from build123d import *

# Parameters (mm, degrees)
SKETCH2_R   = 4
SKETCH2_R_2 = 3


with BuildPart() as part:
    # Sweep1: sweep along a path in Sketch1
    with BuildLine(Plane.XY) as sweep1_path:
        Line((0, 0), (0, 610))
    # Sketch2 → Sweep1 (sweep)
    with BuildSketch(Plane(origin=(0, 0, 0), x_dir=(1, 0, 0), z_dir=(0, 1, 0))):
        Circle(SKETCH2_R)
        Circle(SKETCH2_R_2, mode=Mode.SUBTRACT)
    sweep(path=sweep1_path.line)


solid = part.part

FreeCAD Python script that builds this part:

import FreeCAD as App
import Part
import Sketcher
Q = App.Units.Quantity

doc = App.newDocument("Part")
body = doc.addObject("PartDesign::Body", "Body")

sketch1 = body.newObject("Sketcher::SketchObject", "Sketch")
sketch1.AttachmentSupport = (doc.getObject("XZ_Plane"), [""])
sketch1.MapMode = "FlatFace"
sketch1.addGeometry(Part.Circle(App.Vector(0, 0, 0), App.Vector(0, 0, 1), 4), False)
sketch1.addGeometry(Part.Circle(App.Vector(0, 0, 0), App.Vector(0, 0, 1), 3), False)
sketch1.addConstraint(Sketcher.Constraint("Coincident", 0, 3, -1, 1))
sketch1.addConstraint(Sketcher.Constraint("Coincident", 1, 3, -1, 1))
sketch1.addConstraint(Sketcher.Constraint("Diameter", 0, Q("8 mm")))
sketch1.addConstraint(Sketcher.Constraint("Diameter", 1, Q("6 mm")))

sketch2 = body.newObject("Sketcher::SketchObject", "Sketch001")
sketch2.AttachmentSupport = (doc.getObject("XY_Plane"), [""])
sketch2.MapMode = "FlatFace"
sketch2.addGeometry(Part.LineSegment(App.Vector(0, 0, 0), App.Vector(0, 610, 0)), False)
sketch2.addConstraint(Sketcher.Constraint("Vertical", 0))
sketch2.addConstraint(Sketcher.Constraint("Coincident", 0, 1, -1, 1))
sketch2.addConstraint(Sketcher.Constraint("DistanceY", 0, 1, 0, 2, Q("610 mm")))
doc.recompute()

additivepipe = body.newObject("PartDesign::AdditivePipe", "AdditivePipe")
additivepipe.Profile = sketch1
additivepipe.Spine = (sketch2, ["Edge1"])

doc.recompute()
